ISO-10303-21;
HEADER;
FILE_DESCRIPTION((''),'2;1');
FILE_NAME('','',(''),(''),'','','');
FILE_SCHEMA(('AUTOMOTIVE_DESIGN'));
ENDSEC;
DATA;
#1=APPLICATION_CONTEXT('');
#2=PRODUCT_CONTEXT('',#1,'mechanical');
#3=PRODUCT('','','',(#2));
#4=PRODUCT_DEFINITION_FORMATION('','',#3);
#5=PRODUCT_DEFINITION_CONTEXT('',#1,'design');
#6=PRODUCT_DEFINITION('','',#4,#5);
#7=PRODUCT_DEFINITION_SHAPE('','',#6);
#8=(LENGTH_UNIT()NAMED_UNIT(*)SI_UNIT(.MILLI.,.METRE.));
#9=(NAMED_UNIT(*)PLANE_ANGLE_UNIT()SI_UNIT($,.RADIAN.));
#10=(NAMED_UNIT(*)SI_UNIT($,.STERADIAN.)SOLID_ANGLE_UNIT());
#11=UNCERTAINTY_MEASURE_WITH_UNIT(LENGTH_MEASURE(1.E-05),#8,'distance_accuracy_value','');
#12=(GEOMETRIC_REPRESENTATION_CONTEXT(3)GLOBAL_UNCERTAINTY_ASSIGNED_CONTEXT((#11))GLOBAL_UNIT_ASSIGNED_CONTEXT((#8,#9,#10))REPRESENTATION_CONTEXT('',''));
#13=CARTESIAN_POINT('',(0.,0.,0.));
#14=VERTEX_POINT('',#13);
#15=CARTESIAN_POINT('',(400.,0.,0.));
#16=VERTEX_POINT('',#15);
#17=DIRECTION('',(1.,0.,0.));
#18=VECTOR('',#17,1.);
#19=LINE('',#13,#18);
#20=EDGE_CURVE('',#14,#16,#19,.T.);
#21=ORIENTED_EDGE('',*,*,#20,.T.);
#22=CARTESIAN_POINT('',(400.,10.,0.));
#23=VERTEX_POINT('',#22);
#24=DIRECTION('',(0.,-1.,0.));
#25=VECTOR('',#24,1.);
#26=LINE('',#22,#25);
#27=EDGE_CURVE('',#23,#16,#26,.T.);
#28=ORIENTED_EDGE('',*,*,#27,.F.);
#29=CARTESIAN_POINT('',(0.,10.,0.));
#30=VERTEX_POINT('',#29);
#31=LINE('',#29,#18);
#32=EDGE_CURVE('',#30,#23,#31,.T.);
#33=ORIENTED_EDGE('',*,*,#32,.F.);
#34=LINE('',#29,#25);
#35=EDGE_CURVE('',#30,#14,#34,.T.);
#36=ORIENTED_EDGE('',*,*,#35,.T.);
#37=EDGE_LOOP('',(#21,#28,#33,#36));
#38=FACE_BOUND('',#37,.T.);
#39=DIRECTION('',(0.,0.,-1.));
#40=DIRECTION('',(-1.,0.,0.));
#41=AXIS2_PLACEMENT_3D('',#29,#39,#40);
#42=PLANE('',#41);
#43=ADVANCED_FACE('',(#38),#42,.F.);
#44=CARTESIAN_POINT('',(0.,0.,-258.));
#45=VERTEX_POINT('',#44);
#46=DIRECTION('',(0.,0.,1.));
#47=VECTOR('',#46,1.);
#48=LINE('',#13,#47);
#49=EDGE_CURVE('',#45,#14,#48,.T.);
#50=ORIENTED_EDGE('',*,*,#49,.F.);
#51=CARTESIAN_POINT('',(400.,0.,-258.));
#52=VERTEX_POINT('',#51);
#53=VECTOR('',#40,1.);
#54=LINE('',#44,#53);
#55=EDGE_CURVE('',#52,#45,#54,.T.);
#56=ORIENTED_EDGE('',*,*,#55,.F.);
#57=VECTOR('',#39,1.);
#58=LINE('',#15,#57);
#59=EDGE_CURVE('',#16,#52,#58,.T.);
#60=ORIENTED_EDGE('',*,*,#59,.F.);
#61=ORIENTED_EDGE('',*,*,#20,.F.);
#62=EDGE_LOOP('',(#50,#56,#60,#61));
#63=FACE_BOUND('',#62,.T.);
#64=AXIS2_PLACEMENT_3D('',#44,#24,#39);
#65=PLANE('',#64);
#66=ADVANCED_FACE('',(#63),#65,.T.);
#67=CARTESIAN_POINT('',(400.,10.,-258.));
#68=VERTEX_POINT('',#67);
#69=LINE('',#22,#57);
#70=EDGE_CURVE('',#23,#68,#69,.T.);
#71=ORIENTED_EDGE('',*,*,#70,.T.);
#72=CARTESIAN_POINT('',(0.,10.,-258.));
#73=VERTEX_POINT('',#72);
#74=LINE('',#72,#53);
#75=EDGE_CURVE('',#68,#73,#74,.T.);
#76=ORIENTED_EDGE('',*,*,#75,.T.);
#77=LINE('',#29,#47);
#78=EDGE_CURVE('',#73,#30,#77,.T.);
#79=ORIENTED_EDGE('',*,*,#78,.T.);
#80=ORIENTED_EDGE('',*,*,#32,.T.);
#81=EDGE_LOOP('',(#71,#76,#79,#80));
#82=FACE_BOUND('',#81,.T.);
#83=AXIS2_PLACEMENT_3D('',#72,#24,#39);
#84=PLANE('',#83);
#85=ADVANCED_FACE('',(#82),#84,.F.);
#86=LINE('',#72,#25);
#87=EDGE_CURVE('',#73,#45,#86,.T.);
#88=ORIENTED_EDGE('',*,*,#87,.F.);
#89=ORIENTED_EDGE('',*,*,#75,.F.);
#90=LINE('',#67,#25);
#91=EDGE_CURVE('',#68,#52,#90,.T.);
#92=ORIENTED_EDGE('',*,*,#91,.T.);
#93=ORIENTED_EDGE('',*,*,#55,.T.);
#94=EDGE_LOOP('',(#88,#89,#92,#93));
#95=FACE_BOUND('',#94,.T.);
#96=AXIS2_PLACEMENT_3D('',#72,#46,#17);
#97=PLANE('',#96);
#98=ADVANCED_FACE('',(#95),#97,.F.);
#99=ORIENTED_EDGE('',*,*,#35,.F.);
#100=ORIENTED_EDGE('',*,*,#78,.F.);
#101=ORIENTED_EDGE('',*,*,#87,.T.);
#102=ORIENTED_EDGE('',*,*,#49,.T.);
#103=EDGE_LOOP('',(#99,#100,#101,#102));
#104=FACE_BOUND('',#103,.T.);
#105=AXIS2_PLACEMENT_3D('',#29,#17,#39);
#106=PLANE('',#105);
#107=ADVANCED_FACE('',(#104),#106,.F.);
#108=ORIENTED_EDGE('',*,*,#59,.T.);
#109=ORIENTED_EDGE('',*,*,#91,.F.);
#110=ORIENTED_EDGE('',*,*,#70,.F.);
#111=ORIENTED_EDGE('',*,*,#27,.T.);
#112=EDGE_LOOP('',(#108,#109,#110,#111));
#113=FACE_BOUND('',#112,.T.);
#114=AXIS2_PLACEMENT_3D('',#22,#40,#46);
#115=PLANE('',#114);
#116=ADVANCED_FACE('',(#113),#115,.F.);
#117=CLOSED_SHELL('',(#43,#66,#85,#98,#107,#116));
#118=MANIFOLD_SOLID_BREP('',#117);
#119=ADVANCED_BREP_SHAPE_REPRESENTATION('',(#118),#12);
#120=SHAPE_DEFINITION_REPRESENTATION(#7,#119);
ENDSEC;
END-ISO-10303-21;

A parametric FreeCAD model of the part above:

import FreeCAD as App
import Part
import Sketcher
from FreeCAD import Vector
Q = App.Units.Quantity


def add_polygon(sketch, points):
    """Adds a closed chain of lines whose ends are joined by coincident constraints."""
    first, n = sketch.GeometryCount, len(points)
    for a, b in zip(points, points[1:] + points[:1]):
        sketch.addGeometry(Part.LineSegment(App.Vector(*a, 0), App.Vector(*b, 0)), False)
    for i in range(n):
        sketch.addConstraint(Sketcher.Constraint("Coincident", first + i, 2, first + (i + 1) % n, 1))

doc = App.newDocument("Part")
body = doc.addObject("PartDesign::Body", "Body")

sketch1 = body.newObject("Sketcher::SketchObject", "Sketch")
sketch1.AttachmentSupport = (doc.getObject("XZ_Plane"), [""])
sketch1.MapMode = "FlatFace"
add_polygon(sketch1, [(0, -258), (0, 0), (400, 0), (400, -258)])
sketch1.addConstraint([
    Sketcher.Constraint("Vertical", 0),
    Sketcher.Constraint("Horizontal", 1),
    Sketcher.Constraint("Vertical", 2),
    Sketcher.Constraint("Horizontal", 3),
    Sketcher.Constraint("Coincident", 0, 2, -1, 1),
    Sketcher.Constraint("DistanceX", 1, 1, 1, 2, Q("400 mm")),
    Sketcher.Constraint("DistanceY", 0, 1, 0, 2, Q("258 mm")),
])
pad1 = body.newObject("PartDesign::Pad", "Pad")
pad1.Profile = sketch1
pad1.Length = 10
pad1.Reversed = True

doc.recompute()
